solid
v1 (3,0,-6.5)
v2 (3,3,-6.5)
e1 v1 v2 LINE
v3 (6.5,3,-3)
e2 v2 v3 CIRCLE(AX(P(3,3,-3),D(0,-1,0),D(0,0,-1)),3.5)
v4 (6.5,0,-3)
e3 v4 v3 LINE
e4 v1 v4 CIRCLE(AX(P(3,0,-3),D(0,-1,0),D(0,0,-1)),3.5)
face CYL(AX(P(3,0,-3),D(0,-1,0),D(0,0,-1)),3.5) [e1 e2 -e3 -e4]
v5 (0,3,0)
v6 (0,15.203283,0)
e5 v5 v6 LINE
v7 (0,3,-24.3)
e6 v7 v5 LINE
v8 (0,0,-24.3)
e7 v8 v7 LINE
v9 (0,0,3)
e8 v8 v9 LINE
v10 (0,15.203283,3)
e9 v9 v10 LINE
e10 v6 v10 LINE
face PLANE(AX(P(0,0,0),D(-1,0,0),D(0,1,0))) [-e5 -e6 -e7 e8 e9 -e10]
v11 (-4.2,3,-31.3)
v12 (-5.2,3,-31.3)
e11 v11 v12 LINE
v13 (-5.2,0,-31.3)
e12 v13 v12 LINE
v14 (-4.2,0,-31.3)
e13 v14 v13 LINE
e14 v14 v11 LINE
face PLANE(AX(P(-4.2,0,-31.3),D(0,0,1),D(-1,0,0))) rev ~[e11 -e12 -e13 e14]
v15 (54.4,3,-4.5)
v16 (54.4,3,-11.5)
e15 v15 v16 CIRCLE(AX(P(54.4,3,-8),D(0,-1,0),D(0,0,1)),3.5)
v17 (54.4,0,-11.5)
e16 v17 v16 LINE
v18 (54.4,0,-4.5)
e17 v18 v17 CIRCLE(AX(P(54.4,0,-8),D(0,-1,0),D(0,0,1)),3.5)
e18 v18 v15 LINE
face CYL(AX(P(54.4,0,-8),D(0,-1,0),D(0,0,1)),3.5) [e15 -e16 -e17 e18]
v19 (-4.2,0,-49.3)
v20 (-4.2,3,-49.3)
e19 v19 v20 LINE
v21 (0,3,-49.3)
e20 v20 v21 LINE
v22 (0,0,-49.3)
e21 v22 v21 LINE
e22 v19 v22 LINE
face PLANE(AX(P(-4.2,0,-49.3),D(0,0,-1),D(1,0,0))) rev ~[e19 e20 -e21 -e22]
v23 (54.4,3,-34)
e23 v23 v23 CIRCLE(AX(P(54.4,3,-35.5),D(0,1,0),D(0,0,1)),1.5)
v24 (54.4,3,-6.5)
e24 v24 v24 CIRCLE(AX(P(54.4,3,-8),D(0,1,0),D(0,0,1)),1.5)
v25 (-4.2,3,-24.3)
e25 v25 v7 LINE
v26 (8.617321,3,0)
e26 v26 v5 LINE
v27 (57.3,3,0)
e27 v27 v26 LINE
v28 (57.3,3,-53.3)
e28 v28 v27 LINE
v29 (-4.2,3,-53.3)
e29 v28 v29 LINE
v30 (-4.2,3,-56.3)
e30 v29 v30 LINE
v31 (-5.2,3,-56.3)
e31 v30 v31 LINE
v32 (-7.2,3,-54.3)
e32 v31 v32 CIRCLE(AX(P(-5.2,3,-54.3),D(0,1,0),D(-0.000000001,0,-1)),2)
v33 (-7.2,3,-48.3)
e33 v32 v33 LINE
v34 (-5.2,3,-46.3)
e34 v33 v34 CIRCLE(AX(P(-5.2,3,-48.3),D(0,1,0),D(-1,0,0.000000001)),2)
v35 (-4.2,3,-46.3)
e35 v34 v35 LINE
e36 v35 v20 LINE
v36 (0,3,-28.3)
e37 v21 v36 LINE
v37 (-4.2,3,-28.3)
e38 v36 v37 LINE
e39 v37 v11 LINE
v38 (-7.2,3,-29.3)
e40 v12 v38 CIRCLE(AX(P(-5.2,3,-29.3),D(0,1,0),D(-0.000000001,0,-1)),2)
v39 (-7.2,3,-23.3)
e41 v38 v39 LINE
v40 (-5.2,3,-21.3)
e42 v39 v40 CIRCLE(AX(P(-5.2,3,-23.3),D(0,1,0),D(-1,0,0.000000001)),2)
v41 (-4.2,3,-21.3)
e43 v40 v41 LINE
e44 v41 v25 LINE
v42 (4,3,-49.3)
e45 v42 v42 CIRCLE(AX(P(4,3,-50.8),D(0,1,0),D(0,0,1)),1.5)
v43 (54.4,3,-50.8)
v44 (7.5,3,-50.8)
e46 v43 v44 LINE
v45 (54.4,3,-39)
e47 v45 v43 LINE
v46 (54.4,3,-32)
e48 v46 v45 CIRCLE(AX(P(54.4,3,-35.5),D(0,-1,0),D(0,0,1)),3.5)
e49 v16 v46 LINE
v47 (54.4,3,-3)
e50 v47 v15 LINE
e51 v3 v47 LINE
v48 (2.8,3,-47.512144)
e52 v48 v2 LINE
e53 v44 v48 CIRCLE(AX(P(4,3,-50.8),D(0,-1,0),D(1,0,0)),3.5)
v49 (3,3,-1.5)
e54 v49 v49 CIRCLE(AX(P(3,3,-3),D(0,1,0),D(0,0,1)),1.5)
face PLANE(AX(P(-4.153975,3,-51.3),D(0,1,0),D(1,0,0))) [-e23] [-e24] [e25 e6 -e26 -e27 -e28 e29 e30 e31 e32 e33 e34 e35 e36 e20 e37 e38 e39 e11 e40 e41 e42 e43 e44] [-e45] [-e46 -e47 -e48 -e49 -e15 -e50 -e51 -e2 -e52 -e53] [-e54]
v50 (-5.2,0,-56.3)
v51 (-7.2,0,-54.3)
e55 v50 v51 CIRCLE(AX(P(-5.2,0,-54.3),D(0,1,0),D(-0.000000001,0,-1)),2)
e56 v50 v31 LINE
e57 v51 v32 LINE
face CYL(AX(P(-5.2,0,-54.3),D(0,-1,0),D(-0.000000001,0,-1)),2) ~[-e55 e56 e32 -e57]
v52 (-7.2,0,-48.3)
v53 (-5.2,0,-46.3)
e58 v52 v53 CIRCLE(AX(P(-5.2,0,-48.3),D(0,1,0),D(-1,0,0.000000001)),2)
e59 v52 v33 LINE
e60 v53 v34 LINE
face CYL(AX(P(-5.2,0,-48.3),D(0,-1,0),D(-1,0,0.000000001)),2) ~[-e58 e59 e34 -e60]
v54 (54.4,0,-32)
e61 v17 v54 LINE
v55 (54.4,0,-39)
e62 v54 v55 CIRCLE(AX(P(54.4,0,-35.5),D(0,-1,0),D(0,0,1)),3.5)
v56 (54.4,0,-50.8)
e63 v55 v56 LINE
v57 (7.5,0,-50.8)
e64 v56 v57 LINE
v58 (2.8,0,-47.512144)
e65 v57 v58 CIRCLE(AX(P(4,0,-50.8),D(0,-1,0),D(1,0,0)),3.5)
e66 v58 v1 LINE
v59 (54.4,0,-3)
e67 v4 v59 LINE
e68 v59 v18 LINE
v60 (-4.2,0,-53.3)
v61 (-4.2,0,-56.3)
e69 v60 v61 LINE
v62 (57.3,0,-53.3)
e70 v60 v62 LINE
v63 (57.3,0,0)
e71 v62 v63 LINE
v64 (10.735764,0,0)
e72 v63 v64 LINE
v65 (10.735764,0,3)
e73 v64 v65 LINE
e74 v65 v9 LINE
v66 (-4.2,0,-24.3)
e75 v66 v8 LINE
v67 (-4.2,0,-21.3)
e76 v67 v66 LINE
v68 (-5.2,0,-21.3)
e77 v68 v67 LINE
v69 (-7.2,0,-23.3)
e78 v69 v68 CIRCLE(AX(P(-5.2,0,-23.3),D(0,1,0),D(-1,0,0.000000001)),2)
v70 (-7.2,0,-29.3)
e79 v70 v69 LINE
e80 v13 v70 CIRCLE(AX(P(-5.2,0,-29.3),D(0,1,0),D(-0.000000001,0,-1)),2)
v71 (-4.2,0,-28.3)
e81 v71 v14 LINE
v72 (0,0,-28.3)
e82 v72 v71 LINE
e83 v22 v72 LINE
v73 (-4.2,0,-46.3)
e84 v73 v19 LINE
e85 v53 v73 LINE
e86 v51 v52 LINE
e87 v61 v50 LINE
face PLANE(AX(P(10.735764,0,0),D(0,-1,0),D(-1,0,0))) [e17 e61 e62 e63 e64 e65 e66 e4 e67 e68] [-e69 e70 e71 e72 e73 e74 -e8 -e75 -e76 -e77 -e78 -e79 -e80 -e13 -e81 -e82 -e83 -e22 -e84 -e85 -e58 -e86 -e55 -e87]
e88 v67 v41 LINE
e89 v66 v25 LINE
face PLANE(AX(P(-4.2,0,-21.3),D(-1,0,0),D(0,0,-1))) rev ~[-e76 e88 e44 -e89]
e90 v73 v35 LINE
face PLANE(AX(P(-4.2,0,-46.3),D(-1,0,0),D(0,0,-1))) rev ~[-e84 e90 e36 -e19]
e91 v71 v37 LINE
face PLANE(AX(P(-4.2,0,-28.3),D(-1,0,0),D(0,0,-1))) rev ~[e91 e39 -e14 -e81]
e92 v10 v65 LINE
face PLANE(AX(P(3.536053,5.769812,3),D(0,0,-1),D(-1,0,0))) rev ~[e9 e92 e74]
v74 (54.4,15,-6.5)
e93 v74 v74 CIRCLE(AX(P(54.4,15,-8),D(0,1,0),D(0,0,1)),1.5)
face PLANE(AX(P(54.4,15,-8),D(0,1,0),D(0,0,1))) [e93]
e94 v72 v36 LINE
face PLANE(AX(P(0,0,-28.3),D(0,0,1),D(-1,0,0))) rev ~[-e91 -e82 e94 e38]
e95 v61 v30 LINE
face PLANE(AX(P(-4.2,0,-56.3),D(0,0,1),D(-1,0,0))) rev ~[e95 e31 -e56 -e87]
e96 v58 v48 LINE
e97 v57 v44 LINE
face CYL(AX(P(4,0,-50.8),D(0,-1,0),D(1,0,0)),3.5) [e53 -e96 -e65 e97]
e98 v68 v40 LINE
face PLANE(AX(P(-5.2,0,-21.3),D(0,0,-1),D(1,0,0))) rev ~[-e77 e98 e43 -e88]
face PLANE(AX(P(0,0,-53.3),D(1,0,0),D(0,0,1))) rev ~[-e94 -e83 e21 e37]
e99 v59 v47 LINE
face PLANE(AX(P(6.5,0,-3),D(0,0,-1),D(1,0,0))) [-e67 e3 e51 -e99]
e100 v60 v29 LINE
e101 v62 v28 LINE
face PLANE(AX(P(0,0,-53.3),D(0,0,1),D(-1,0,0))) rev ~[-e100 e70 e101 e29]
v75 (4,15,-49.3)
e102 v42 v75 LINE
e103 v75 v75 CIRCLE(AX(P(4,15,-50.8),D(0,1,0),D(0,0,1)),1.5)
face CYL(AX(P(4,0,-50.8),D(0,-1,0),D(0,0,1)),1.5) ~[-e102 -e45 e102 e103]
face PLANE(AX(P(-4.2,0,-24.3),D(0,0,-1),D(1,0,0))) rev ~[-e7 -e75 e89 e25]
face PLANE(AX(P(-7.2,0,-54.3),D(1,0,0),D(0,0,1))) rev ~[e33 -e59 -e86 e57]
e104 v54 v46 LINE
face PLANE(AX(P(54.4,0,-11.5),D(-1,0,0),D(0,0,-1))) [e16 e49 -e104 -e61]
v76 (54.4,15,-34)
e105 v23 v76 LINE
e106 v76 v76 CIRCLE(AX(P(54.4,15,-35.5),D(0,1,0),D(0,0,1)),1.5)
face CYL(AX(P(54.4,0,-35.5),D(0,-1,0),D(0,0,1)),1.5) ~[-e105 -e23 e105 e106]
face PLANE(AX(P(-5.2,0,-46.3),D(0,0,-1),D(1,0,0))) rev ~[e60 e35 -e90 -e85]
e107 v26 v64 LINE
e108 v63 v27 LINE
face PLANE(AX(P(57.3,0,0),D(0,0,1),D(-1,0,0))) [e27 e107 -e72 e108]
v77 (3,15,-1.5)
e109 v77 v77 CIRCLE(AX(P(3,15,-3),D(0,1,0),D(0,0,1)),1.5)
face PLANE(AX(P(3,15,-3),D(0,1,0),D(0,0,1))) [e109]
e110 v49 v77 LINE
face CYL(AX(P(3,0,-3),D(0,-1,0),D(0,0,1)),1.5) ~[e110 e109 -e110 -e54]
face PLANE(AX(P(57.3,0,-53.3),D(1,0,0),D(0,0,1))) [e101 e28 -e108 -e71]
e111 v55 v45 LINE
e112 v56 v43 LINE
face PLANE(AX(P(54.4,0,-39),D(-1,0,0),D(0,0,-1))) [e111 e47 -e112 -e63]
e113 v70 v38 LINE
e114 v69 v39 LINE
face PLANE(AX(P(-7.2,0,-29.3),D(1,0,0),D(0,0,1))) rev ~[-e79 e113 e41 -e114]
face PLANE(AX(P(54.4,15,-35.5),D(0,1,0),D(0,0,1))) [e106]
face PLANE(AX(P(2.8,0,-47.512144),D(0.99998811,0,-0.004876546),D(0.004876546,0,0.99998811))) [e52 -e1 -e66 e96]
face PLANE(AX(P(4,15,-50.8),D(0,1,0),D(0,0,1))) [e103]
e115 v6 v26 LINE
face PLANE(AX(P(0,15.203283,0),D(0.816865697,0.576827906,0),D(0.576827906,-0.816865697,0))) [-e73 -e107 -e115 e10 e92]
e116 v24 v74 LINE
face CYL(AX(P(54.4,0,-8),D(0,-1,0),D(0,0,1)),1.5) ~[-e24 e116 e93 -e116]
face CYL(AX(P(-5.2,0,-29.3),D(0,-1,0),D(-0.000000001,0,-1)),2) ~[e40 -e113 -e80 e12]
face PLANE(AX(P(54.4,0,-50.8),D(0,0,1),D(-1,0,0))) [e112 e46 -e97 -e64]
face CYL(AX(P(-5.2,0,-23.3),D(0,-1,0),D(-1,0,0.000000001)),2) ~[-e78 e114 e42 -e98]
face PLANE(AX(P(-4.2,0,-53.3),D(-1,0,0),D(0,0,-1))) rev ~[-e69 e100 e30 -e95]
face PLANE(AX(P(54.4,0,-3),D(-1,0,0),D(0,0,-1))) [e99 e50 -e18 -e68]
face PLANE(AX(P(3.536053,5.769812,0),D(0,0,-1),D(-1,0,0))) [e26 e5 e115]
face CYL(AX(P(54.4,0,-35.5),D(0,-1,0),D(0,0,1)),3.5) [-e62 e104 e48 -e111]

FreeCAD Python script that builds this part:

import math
import FreeCAD as App
import Part
import Sketcher


def add_polygon(sketch, points):
    """Adds a closed chain of lines whose ends are joined by coincident constraints."""
    first, n = sketch.GeometryCount, len(points)
    for a, b in zip(points, points[1:] + points[:1]):
        sketch.addGeometry(Part.LineSegment(App.Vector(*a, 0), App.Vector(*b, 0)), False)
    for i in range(n):
        sketch.addConstraint(Sketcher.Constraint("Coincident", first + i, 2, first + (i + 1) % n, 1))

doc = App.newDocument("Part")
body = doc.addObject("PartDesign::Body", "Body")

# Sketch on XZ plane
sketch1 = doc.addObject("Sketcher::SketchObject", "Sketch")
body.addObject(sketch1)
sketch1.AttachmentSupport = (doc.XZ_Plane, [""])
sketch1.MapMode = "FlatFace"
add_polygon(sketch1, [(57.3, -53.3), (0, -53.3), (0, 0), (57.3, 0)])  # lines 0-3
sketch1.addGeometry(Part.Circle(App.Vector(54.4, -8, 0), App.Vector(0, 0, 1), 1.5), False)  # 4
sketch1.addGeometry(Part.Circle(App.Vector(3, -3, 0), App.Vector(0, 0, 1), 1.5), False)  # 5
sketch1.addGeometry(Part.ArcOfCircle(Part.Circle(App.Vector(3, -3, 0), App.Vector(0, 0, 1), 3.5), math.radians(-90), math.radians(0)), False)  # 6
sketch1.addGeometry(Part.LineSegment(App.Vector(3, -6.5, 0), App.Vector(2.8, -47.512144, 0)), False)  # 7
sketch1.addGeometry(Part.ArcOfCircle(Part.Circle(App.Vector(4, -50.8, 0), App.Vector(0, 0, 1), 3.5), math.radians(0), math.radians(110.051043)), False)  # 8
sketch1.addGeometry(Part.LineSegment(App.Vector(7.5, -50.8, 0), App.Vector(54.4, -50.8, 0)), False)  # 9
sketch1.addGeometry(Part.LineSegment(App.Vector(54.4, -50.8, 0), App.Vector(54.4, -39, 0)), False)  # 10
sketch1.addGeometry(Part.ArcOfCircle(Part.Circle(App.Vector(54.4, -35.5, 0), App.Vector(0, 0, 1), 3.5), math.radians(90), math.radians(270)), False)  # 11
sketch1.addGeometry(Part.LineSegment(App.Vector(54.4, -32, 0), App.Vector(54.4, -11.5, 0)), False)  # 12
sketch1.addGeometry(Part.ArcOfCircle(Part.Circle(App.Vector(54.4, -8, 0), App.Vector(0, 0, 1), 3.5), math.radians(90), math.radians(270)), False)  # 13
sketch1.addGeometry(Part.LineSegment(App.Vector(54.4, -4.5, 0), App.Vector(54.4, -3, 0)), False)  # 14
sketch1.addGeometry(Part.LineSegment(App.Vector(54.4, -3, 0), App.Vector(6.5, -3, 0)), False)  # 15
sketch1.addGeometry(Part.Circle(App.Vector(54.4, -35.5, 0), App.Vector(0, 0, 1), 1.5), False)  # 16
sketch1.addGeometry(Part.Circle(App.Vector(4, -50.8, 0), App.Vector(0, 0, 1), 1.5), False)  # 17
sketch1.addConstraint(Sketcher.Constraint("Coincident", 6, 1, 7, 1))
sketch1.addConstraint(Sketcher.Constraint("Coincident", 7, 2, 8, 2))
sketch1.addConstraint(Sketcher.Constraint("Coincident", 8, 1, 9, 1))
sketch1.addConstraint(Sketcher.Constraint("Coincident", 9, 2, 10, 1))
sketch1.addConstraint(Sketcher.Constraint("Coincident", 10, 2, 11, 2))
sketch1.addConstraint(Sketcher.Constraint("Coincident", 11, 1, 12, 1))
sketch1.addConstraint(Sketcher.Constraint("Coincident", 12, 2, 13, 2))
sketch1.addConstraint(Sketcher.Constraint("Coincident", 13, 1, 14, 1))
sketch1.addConstraint(Sketcher.Constraint("Coincident", 14, 2, 15, 1))
sketch1.addConstraint(Sketcher.Constraint("Coincident", 15, 2, 6, 2))
sketch1.addConstraint(Sketcher.Constraint("Horizontal", 0))
sketch1.addConstraint(Sketcher.Constraint("Vertical", 1))
sketch1.addConstraint(Sketcher.Constraint("Horizontal", 2))
sketch1.addConstraint(Sketcher.Constraint("Vertical", 3))
sketch1.addConstraint(Sketcher.Constraint("Horizontal", 9))
sketch1.addConstraint(Sketcher.Constraint("Vertical", 10))
sketch1.addConstraint(Sketcher.Constraint("Vertical", 12))
sketch1.addConstraint(Sketcher.Constraint("Vertical", 14))
sketch1.addConstraint(Sketcher.Constraint("Horizontal", 15))
sketch1.addConstraint(Sketcher.Constraint("Coincident", 1, 2, -1, 1))
sketch1.addConstraint(Sketcher.Constraint("Coincident", 6, 3, 5, 3))
sketch1.addConstraint(Sketcher.Constraint("Coincident", 13, 3, 4, 3))
sketch1.addConstraint(Sketcher.Constraint("Coincident", 16, 3, 11, 3))
sketch1.addConstraint(Sketcher.Constraint("Coincident", 17, 3, 8, 3))
sketch1.addConstraint(Sketcher.Constraint("Equal", 4, 5))
sketch1.addConstraint(Sketcher.Constraint("Equal", 6, 8))
sketch1.addConstraint(Sketcher.Constraint("Equal", 8, 11))
sketch1.addConstraint(Sketcher.Constraint("Equal", 11, 13))
sketch1.addConstraint(Sketcher.Constraint("Equal", 5, 16))
sketch1.addConstraint(Sketcher.Constraint("Equal", 16, 17))
sketch1.addConstraint(Sketcher.Constraint("Horizontal", 17, 3, 8, 1))
sketch1.addConstraint(Sketcher.Constraint("Horizontal", 6, 3, 14, 2))
sketch1.addConstraint(Sketcher.Constraint("Vertical", 4, 3, 11, 3))
sketch1.addConstraint(Sketcher.Constraint("Vertical", 5, 3, 6, 1))
sketch1.addConstraint(Sketcher.Constraint("Vertical", 16, 3, 9, 2))
sketch1.addConstraint(Sketcher.Constraint("Vertical", 10, 2, 11, 1))
sketch1.addConstraint(Sketcher.Constraint("Vertical", 12, 2, 13, 1))
sketch1.addConstraint(Sketcher.Constraint("Diameter", 4, 3.0))
sketch1.addConstraint(Sketcher.Constraint("Radius", 6, 3.5))
sketch1.addConstraint(Sketcher.Constraint("DistanceX", 0, 2, 0, 1, 57.3))
sketch1.addConstraint(Sketcher.Constraint("DistanceX", 9, 1, 9, 2, 46.9))
sketch1.addConstraint(Sketcher.Constraint("DistanceX", 15, 2, 15, 1, 47.9))
sketch1.addConstraint(Sketcher.Constraint("DistanceY", 1, 1, 1, 2, 53.3))
sketch1.addConstraint(Sketcher.Constraint("DistanceY", 10, 1, 10, 2, 11.8))
sketch1.addConstraint(Sketcher.Constraint("DistanceY", 12, 1, 12, 2, 20.5))
sketch1.addConstraint(Sketcher.Constraint("DistanceY", 14, 1, 14, 2, 1.5))
sketch1.addConstraint(Sketcher.Constraint("DistanceY", 4, 3, -1, 1, 8.0))
sketch1.addConstraint(Sketcher.Constraint("DistanceX", -1, 1, 5, 3, 3.0))
sketch1.addConstraint(Sketcher.Constraint("DistanceX", -1, 1, 7, 2, 2.8))
pad1 = doc.addObject("PartDesign::Pad", "Pad")
body.addObject(pad1)
pad1.Profile = sketch1
pad1.Length = 3
pad1.Reversed = True

# Sketch on XZ plane
sketch2 = doc.addObject("Sketcher::SketchObject", "Sketch001")
body.addObject(sketch2)
sketch2.AttachmentSupport = (doc.XZ_Plane, [""])
sketch2.MapMode = "FlatFace"
sketch2.addGeometry(Part.LineSegment(App.Vector(-4.2, -49.3, 0), App.Vector(0, -49.3, 0)), False)
sketch2.addGeometry(Part.LineSegment(App.Vector(0, -49.3, 0), App.Vector(0, -53.3, 0)), False)
sketch2.addGeometry(Part.LineSegment(App.Vector(0, -53.3, 0), App.Vector(-4.2, -53.3, 0)), False)
sketch2.addGeometry(Part.LineSegment(App.Vector(-4.2, -53.3, 0), App.Vector(-4.2, -56.3, 0)), False)
sketch2.addGeometry(Part.LineSegment(App.Vector(-4.2, -56.3, 0), App.Vector(-5.2, -56.3, 0)), False)
sketch2.addGeometry(Part.ArcOfCircle(Part.Circle(App.Vector(-5.2, -54.3, 0), App.Vector(0, 0, 1), 2), math.radians(-180), math.radians(-90)), False)
sketch2.addGeometry(Part.LineSegment(App.Vector(-7.2, -54.3, 0), App.Vector(-7.2, -48.3, 0)), False)
sketch2.addGeometry(Part.ArcOfCircle(Part.Circle(App.Vector(-5.2, -48.3, 0), App.Vector(0, 0, 1), 2), math.radians(90), math.radians(180)), False)
sketch2.addGeometry(Part.LineSegment(App.Vector(-5.2, -46.3, 0), App.Vector(-4.2, -46.3, 0)), False)
sketch2.addGeometry(Part.LineSegment(App.Vector(-4.2, -46.3, 0), App.Vector(-4.2, -49.3, 0)), False)
sketch2.addConstraint(Sketcher.Constraint("Coincident", 0, 2, 1, 1))
sketch2.addConstraint(Sketcher.Constraint("Coincident", 1, 2, 2, 1))
sketch2.addConstraint(Sketcher.Constraint("Coincident", 2, 2, 3, 1))
sketch2.addConstraint(Sketcher.Constraint("Coincident", 3, 2, 4, 1))
sketch2.addConstraint(Sketcher.Constraint("Tangent", 4, 2, 5, 2))
sketch2.addConstraint(Sketcher.Constraint("Tangent", 5, 1, 6, 1))
sketch2.addConstraint(Sketcher.Constraint("Tangent", 6, 2, 7, 2))
sketch2.addConstraint(Sketcher.Constraint("Tangent", 7, 1, 8, 1))
sketch2.addConstraint(Sketcher.Constraint("Coincident", 8, 2, 9, 1))
sketch2.addConstraint(Sketcher.Constraint("Coincident", 9, 2, 0, 1))
sketch2.addConstraint(Sketcher.Constraint("Horizontal", 0))
sketch2.addConstraint(Sketcher.Constraint("Vertical", 1))
sketch2.addConstraint(Sketcher.Constraint("Horizontal", 2))
sketch2.addConstraint(Sketcher.Constraint("Vertical", 3))
sketch2.addConstraint(Sketcher.Constraint("Horizontal", 4))
sketch2.addConstraint(Sketcher.Constraint("Vertical", 6))
sketch2.addConstraint(Sketcher.Constraint("Horizontal", 8))
sketch2.addConstraint(Sketcher.Constraint("Vertical", 9))
sketch2.addConstraint(Sketcher.Constraint("Equal", 5, 7))
sketch2.addConstraint(Sketcher.Constraint("PointOnObject", 0, 2, -2))
sketch2.addConstraint(Sketcher.Constraint("Vertical", 3, 2, 8, 2))
sketch2.addConstraint(Sketcher.Constraint("Equal", 3, 9))
sketch2.addConstraint(Sketcher.Constraint("Radius", 5, 2.0))
sketch2.addConstraint(Sketcher.Constraint("DistanceX", 4, 2, 4, 1, 1.0))
sketch2.addConstraint(Sketcher.Constraint("DistanceY", 1, 2, 1, 1, 4.0))
sketch2.addConstraint(Sketcher.Constraint("DistanceY", 3, 2, 3, 1, 3.0))
sketch2.addConstraint(Sketcher.Constraint("DistanceX", 0, 1, 0, 2, 4.2))
sketch2.addConstraint(Sketcher.Constraint("DistanceY", 5, 3, -1, 1, 54.3))
pad2 = doc.addObject("PartDesign::Pad", "Pad001")
body.addObject(pad2)
pad2.Profile = sketch2
pad2.Length = 3
pad2.Reversed = True
doc.recompute()

linearpattern = doc.addObject("PartDesign::LinearPattern", "LinearPattern")
body.addObject(linearpattern)
linearpattern.Originals = [pad2]
linearpattern.Direction = (doc.Z_Axis, [""])
linearpattern.Mode = "offset"
linearpattern.Offset = 25
linearpattern.Occurrences = 2
body.Tip = linearpattern

# Sketch on XY plane
sketch3 = doc.addObject("Sketcher::SketchObject", "Sketch002")
body.addObject(sketch3)
sketch3.AttachmentSupport = (doc.XY_Plane, [""])
sketch3.MapMode = "FlatFace"
add_polygon(sketch3, [(0, 15.203283), (0, 0), (10.735764, 0)])  # lines 0-2
sketch3.addConstraint(Sketcher.Constraint("Vertical", 0))
sketch3.addConstraint(Sketcher.Constraint("Horizontal", 1))
sketch3.addConstraint(Sketcher.Constraint("Coincident", 0, 2, -1, 1))
sketch3.addConstraint(Sketcher.Constraint("Distance", 2, 18.611729))
sketch3.addConstraint(Sketcher.Constraint("DistanceX", 1, 1, 1, 2, 10.735764))
pad3 = doc.addObject("PartDesign::Pad", "Pad002")
body.addObject(pad3)
pad3.Profile = sketch3
pad3.Length = 3

# Sketch on XZ plane
sketch4 = doc.addObject("Sketcher::SketchObject", "Sketch003")
body.addObject(sketch4)
sketch4.AttachmentSupport = (doc.XZ_Plane, [""])
sketch4.MapMode = "FlatFace"
sketch4.addGeometry(Part.Circle(App.Vector(54.4, -8, 0), App.Vector(0, 0, 1), 1.5), False)
sketch4.addGeometry(Part.Circle(App.Vector(54.4, -35.5, 0), App.Vector(0, 0, 1), 1.5), False)
sketch4.addGeometry(Part.Circle(App.Vector(4, -50.8, 0), App.Vector(0, 0, 1), 1.5), False)
sketch4.addGeometry(Part.Circle(App.Vector(3, -3, 0), App.Vector(0, 0, 1), 1.5), False)
sketch4.addConstraint(Sketcher.Constraint("Equal", 0, 1))
sketch4.addConstraint(Sketcher.Constraint("Equal", 1, 2))
sketch4.addConstraint(Sketcher.Constraint("Equal", 2, 3))
sketch4.addConstraint(Sketcher.Constraint("Vertical", 0, 3, 1, 3))
sketch4.addConstraint(Sketcher.Constraint("Diameter", 0, 3.0))
sketch4.addConstraint(Sketcher.Constraint("DistanceY", 0, 3, -1, 1, 8.0))
sketch4.addConstraint(Sketcher.Constraint("DistanceX", -1, 1, 2, 3, 4.0))
sketch4.addConstraint(Sketcher.Constraint("DistanceX", -1, 1, 3, 3, 3.0))
sketch4.addConstraint(Sketcher.Constraint("DistanceY", 3, 3, -1, 1, 3.0))
sketch4.addConstraint(Sketcher.Constraint("DistanceX", -1, 1, 0, 3, 54.4))
sketch4.addConstraint(Sketcher.Constraint("DistanceY", 1, 3, -1, 1, 35.5))
sketch4.addConstraint(Sketcher.Constraint("DistanceY", 2, 3, -1, 1, 50.8))
pad4 = doc.addObject("PartDesign::Pad", "Pad003")
body.addObject(pad4)
pad4.Profile = sketch4
pad4.Length = 15
pad4.Reversed = True

doc.recompute()
